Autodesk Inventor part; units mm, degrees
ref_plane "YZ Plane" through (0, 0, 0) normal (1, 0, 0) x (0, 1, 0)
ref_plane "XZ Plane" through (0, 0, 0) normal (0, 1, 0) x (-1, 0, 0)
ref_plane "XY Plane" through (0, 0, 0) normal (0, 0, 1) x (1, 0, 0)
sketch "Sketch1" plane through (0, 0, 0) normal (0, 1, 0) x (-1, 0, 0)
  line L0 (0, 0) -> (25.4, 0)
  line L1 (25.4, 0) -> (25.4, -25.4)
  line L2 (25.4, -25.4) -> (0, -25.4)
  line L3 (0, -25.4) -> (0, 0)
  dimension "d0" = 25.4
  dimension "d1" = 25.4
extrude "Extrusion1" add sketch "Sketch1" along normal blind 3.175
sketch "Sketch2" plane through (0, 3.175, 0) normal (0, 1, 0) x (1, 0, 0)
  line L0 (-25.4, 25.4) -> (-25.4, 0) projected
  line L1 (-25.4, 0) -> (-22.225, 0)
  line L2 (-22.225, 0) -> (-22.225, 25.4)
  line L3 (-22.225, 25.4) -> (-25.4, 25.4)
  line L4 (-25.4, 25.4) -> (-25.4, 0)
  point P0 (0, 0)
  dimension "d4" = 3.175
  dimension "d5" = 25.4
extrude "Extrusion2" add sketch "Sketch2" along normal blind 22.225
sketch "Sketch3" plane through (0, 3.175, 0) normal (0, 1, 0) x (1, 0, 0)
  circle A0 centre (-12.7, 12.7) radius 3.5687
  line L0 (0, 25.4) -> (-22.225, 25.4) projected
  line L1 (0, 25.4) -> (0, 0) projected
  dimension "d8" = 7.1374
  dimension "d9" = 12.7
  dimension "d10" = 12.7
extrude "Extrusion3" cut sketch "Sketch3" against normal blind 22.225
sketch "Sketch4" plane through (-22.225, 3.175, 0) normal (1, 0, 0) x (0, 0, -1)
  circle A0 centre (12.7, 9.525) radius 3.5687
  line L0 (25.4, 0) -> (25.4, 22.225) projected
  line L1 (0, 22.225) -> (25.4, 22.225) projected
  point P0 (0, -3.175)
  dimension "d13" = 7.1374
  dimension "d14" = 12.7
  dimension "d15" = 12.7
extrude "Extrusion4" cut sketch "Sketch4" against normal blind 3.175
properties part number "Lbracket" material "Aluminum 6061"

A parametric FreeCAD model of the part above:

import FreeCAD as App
import Part
import Sketcher

V = App.Vector
Q = App.Units.Quantity


def add_polygon(sketch, points):
    """Adds a closed chain of lines whose ends are joined by coincident constraints."""
    first, n = sketch.GeometryCount, len(points)
    for a, b in zip(points, points[1:] + points[:1]):
        sketch.addGeometry(Part.LineSegment(App.Vector(*a, 0), App.Vector(*b, 0)), False)
    for i in range(n):
        sketch.addConstraint(Sketcher.Constraint("Coincident", first + i, 2, first + (i + 1) % n, 1))

doc = App.newDocument("Part")
params = doc.addObject("Spreadsheet::Sheet", "Params")
for row, (alias, value) in enumerate([
    ("sketch1_width", "1 in"),
    ("pad1_length", "0.125 in"),
    ("sketch2_height", "1 in"),
    ("sketch2_width", "0.125 in"),
    ("pad2_length", "0.875 in"),
    ("sketch3_diameter", "0.281 in"),
    ("pocket1_length", "0.875 in"),
    ("sketch4_diameter", "0.281 in"),
    ("pocket2_length", "0.125 in"),
], start=1):
    params.set(f"A{row}", alias)
    params.set(f"B{row}", "=" + value)
    params.setAlias(f"B{row}", alias)

body = doc.addObject("PartDesign::Body", "Body")

sketch1 = body.newObject("Sketcher::SketchObject", "Sketch")
sketch1.AttachmentSupport = (doc.getObject("XZ_Plane"), [""])
sketch1.MapMode = "FlatFace"
add_polygon(sketch1, [(-25, 0), (0, 0), (0, -25), (-25, -25)])
sketch1.addConstraint([
    Sketcher.Constraint("Horizontal", 0),
    Sketcher.Constraint("Vertical", 1),
    Sketcher.Constraint("Horizontal", 2),
    Sketcher.Constraint("Vertical", 3),
    Sketcher.Constraint("Coincident", 0, 2, -1, 1),
    Sketcher.Constraint("Equal", 2, 1),
    Sketcher.Constraint("DistanceX", 0, 1, 0, 2, Q("1 in")),
])
sketch1.setExpression("Constraints[10]", "Params.sketch1_width")
pad1 = body.newObject("PartDesign::Pad", "Pad")
pad1.Profile = sketch1
pad1.setExpression("Length", "Params.pad1_length")
pad1.Reversed = True

sketch2 = body.newObject("Sketcher::SketchObject", "Sketch001")
sketch2.AttachmentSupport = (doc.getObject("XZ_Plane"), [""])
sketch2.MapMode = "FlatFace"
sketch2.AttachmentOffset = App.Placement(V(0, 0, -0.125 * 25.4), App.Rotation())
add_polygon(sketch2, [(-22.2, -25.4), (-25.4, -25.4), (-25.4, 0), (-22.2, 0)])
sketch2.addConstraint([
    Sketcher.Constraint("Horizontal", 0),
    Sketcher.Constraint("Vertical", 1),
    Sketcher.Constraint("Horizontal", 2),
    Sketcher.Constraint("Vertical", 3),
    Sketcher.Constraint("PointOnObject", 1, 2, -1),
    Sketcher.Constraint("DistanceY", 1, 1, 1, 2, Q("1 in")),
    Sketcher.Constraint("DistanceX", 0, 2, -1, 1, Q("1 in")),
    Sketcher.Constraint("DistanceX", 0, 2, 0, 1, Q("0.125 in")),
])
sketch2.setExpression("Constraints[9]", "Params.sketch2_height")
sketch2.setExpression("Constraints[11]", "Params.sketch2_width")
pad2 = body.newObject("PartDesign::Pad", "Pad001")
pad2.Profile = sketch2
pad2.setExpression("Length", "Params.pad2_length")
pad2.Reversed = True

sketch3 = body.newObject("Sketcher::SketchObject", "Sketch002")
sketch3.AttachmentSupport = (doc.getObject("XZ_Plane"), [""])
sketch3.MapMode = "FlatFace"
sketch3.AttachmentOffset = App.Placement(V(0, 0, -0.125 * 25.4), App.Rotation())
sketch3.addGeometry(Part.Circle(V(-12.7, -12.7, 0), V(0, 0, 1), 3.6), False)
sketch3.addConstraint([
    Sketcher.Constraint("Diameter", 0, Q("0.281 in")),
    Sketcher.Constraint("DistanceX", 0, 3, -1, 1, Q("0.5 in")),
    Sketcher.Constraint("DistanceY", 0, 3, -1, 1, Q("0.5 in")),
])
sketch3.setExpression("Constraints[0]", "Params.sketch3_diameter")
pocket1 = body.newObject("PartDesign::Pocket", "Pocket")
pocket1.Profile = sketch3
pocket1.setExpression("Length", "Params.pocket1_length")
pocket1.Reversed = True

sketch4 = body.newObject("Sketcher::SketchObject", "Sketch003")
sketch4.AttachmentSupport = (doc.getObject("YZ_Plane"), [""])
sketch4.MapMode = "FlatFace"
sketch4.AttachmentOffset = App.Placement(V(0, 0, -0.875 * 25.4), App.Rotation())
sketch4.addGeometry(Part.Circle(V(12.7, -12.7, 0), V(0, 0, 1), 3.6), False)
sketch4.addConstraint([
    Sketcher.Constraint("Diameter", 0, Q("0.281 in")),
    Sketcher.Constraint("DistanceX", -1, 1, 0, 3, Q("0.5 in")),
    Sketcher.Constraint("DistanceY", 0, 3, -1, 1, Q("0.5 in")),
])
sketch4.setExpression("Constraints[0]", "Params.sketch4_diameter")
pocket2 = body.newObject("PartDesign::Pocket", "Pocket001")
pocket2.Profile = sketch4
pocket2.setExpression("Length", "Params.pocket2_length")

doc.recompute()
